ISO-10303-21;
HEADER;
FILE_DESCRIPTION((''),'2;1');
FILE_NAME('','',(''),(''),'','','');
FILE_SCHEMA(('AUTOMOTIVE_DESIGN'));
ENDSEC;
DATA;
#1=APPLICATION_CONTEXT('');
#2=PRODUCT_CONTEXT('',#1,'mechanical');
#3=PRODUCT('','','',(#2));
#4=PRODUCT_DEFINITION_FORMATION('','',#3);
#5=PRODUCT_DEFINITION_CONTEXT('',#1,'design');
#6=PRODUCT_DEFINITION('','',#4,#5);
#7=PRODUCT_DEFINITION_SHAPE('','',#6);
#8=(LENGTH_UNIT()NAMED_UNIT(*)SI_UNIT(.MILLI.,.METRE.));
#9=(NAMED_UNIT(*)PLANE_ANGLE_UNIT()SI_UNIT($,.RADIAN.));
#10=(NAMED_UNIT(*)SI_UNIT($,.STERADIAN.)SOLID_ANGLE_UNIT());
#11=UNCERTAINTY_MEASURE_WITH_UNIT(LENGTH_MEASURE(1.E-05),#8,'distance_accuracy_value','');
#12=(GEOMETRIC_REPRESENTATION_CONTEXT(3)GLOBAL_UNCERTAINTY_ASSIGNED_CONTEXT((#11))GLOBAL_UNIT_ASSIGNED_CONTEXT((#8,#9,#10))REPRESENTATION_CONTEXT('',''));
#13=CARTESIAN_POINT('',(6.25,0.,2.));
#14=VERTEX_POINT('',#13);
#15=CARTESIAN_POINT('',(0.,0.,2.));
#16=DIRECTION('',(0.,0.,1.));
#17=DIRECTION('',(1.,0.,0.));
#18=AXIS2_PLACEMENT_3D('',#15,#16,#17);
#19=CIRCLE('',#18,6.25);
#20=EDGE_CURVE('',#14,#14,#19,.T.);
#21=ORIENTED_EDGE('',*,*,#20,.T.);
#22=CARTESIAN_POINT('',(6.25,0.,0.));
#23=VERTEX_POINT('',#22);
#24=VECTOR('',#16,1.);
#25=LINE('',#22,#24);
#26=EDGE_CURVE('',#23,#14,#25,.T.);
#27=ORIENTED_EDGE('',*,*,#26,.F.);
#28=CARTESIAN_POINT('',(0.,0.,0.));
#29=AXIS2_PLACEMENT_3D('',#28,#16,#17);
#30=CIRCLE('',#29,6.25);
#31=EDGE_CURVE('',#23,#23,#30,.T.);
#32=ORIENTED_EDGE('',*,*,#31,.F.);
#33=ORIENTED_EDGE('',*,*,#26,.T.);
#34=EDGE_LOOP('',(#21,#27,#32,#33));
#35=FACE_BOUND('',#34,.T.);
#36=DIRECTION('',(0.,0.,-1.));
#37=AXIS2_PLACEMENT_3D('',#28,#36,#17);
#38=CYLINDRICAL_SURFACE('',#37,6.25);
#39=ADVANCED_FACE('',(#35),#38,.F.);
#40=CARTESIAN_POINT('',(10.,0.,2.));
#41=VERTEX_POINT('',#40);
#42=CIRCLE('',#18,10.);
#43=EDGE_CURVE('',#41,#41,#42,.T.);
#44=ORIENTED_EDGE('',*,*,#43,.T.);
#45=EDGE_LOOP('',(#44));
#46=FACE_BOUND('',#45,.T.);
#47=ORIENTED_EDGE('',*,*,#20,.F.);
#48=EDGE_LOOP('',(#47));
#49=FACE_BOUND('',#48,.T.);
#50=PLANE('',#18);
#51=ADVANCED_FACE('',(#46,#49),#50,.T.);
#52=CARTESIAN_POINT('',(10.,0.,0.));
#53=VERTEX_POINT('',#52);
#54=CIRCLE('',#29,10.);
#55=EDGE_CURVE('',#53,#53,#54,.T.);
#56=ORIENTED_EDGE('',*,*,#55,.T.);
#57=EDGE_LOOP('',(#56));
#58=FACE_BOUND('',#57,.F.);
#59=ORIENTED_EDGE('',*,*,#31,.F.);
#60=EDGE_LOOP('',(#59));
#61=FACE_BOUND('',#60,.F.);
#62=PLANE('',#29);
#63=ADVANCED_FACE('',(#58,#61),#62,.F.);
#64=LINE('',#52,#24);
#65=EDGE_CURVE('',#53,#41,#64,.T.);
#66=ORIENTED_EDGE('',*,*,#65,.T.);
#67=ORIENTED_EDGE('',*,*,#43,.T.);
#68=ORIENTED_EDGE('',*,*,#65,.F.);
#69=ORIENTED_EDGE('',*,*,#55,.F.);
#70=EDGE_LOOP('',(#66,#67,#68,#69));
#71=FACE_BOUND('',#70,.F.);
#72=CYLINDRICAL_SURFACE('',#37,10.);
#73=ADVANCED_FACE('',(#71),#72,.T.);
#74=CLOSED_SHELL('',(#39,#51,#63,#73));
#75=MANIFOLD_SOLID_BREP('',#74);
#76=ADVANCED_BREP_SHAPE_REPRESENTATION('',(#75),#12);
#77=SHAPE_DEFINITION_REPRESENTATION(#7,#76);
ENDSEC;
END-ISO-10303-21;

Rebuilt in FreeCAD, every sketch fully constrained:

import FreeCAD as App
import Part
import Sketcher
from FreeCAD import Vector
Q = App.Units.Quantity

doc = App.newDocument("Part")
body = doc.addObject("PartDesign::Body", "Body")

sketch1 = body.newObject("Sketcher::SketchObject", "Sketch")
sketch1.AttachmentSupport = (doc.getObject("XY_Plane"), [""])
sketch1.MapMode = "FlatFace"
sketch1.addGeometry([
    Part.Circle(Vector(0, 0, 0), Vector(0, 0, 1), 10),
    Part.Circle(Vector(0, 0, 0), Vector(0, 0, 1), 6),
], False)
sketch1.addConstraint([
    Sketcher.Constraint("Coincident", 0, 3, -1, 1),
    Sketcher.Constraint("Coincident", 1, 3, -1, 1),
    Sketcher.Constraint("Diameter", 0, Q("20 mm")),
    Sketcher.Constraint("Diameter", 1, Q("12.5 mm")),
])
pad1 = body.newObject("PartDesign::Pad", "Pad")
pad1.Profile = sketch1
pad1.Length = 2

doc.recompute()
